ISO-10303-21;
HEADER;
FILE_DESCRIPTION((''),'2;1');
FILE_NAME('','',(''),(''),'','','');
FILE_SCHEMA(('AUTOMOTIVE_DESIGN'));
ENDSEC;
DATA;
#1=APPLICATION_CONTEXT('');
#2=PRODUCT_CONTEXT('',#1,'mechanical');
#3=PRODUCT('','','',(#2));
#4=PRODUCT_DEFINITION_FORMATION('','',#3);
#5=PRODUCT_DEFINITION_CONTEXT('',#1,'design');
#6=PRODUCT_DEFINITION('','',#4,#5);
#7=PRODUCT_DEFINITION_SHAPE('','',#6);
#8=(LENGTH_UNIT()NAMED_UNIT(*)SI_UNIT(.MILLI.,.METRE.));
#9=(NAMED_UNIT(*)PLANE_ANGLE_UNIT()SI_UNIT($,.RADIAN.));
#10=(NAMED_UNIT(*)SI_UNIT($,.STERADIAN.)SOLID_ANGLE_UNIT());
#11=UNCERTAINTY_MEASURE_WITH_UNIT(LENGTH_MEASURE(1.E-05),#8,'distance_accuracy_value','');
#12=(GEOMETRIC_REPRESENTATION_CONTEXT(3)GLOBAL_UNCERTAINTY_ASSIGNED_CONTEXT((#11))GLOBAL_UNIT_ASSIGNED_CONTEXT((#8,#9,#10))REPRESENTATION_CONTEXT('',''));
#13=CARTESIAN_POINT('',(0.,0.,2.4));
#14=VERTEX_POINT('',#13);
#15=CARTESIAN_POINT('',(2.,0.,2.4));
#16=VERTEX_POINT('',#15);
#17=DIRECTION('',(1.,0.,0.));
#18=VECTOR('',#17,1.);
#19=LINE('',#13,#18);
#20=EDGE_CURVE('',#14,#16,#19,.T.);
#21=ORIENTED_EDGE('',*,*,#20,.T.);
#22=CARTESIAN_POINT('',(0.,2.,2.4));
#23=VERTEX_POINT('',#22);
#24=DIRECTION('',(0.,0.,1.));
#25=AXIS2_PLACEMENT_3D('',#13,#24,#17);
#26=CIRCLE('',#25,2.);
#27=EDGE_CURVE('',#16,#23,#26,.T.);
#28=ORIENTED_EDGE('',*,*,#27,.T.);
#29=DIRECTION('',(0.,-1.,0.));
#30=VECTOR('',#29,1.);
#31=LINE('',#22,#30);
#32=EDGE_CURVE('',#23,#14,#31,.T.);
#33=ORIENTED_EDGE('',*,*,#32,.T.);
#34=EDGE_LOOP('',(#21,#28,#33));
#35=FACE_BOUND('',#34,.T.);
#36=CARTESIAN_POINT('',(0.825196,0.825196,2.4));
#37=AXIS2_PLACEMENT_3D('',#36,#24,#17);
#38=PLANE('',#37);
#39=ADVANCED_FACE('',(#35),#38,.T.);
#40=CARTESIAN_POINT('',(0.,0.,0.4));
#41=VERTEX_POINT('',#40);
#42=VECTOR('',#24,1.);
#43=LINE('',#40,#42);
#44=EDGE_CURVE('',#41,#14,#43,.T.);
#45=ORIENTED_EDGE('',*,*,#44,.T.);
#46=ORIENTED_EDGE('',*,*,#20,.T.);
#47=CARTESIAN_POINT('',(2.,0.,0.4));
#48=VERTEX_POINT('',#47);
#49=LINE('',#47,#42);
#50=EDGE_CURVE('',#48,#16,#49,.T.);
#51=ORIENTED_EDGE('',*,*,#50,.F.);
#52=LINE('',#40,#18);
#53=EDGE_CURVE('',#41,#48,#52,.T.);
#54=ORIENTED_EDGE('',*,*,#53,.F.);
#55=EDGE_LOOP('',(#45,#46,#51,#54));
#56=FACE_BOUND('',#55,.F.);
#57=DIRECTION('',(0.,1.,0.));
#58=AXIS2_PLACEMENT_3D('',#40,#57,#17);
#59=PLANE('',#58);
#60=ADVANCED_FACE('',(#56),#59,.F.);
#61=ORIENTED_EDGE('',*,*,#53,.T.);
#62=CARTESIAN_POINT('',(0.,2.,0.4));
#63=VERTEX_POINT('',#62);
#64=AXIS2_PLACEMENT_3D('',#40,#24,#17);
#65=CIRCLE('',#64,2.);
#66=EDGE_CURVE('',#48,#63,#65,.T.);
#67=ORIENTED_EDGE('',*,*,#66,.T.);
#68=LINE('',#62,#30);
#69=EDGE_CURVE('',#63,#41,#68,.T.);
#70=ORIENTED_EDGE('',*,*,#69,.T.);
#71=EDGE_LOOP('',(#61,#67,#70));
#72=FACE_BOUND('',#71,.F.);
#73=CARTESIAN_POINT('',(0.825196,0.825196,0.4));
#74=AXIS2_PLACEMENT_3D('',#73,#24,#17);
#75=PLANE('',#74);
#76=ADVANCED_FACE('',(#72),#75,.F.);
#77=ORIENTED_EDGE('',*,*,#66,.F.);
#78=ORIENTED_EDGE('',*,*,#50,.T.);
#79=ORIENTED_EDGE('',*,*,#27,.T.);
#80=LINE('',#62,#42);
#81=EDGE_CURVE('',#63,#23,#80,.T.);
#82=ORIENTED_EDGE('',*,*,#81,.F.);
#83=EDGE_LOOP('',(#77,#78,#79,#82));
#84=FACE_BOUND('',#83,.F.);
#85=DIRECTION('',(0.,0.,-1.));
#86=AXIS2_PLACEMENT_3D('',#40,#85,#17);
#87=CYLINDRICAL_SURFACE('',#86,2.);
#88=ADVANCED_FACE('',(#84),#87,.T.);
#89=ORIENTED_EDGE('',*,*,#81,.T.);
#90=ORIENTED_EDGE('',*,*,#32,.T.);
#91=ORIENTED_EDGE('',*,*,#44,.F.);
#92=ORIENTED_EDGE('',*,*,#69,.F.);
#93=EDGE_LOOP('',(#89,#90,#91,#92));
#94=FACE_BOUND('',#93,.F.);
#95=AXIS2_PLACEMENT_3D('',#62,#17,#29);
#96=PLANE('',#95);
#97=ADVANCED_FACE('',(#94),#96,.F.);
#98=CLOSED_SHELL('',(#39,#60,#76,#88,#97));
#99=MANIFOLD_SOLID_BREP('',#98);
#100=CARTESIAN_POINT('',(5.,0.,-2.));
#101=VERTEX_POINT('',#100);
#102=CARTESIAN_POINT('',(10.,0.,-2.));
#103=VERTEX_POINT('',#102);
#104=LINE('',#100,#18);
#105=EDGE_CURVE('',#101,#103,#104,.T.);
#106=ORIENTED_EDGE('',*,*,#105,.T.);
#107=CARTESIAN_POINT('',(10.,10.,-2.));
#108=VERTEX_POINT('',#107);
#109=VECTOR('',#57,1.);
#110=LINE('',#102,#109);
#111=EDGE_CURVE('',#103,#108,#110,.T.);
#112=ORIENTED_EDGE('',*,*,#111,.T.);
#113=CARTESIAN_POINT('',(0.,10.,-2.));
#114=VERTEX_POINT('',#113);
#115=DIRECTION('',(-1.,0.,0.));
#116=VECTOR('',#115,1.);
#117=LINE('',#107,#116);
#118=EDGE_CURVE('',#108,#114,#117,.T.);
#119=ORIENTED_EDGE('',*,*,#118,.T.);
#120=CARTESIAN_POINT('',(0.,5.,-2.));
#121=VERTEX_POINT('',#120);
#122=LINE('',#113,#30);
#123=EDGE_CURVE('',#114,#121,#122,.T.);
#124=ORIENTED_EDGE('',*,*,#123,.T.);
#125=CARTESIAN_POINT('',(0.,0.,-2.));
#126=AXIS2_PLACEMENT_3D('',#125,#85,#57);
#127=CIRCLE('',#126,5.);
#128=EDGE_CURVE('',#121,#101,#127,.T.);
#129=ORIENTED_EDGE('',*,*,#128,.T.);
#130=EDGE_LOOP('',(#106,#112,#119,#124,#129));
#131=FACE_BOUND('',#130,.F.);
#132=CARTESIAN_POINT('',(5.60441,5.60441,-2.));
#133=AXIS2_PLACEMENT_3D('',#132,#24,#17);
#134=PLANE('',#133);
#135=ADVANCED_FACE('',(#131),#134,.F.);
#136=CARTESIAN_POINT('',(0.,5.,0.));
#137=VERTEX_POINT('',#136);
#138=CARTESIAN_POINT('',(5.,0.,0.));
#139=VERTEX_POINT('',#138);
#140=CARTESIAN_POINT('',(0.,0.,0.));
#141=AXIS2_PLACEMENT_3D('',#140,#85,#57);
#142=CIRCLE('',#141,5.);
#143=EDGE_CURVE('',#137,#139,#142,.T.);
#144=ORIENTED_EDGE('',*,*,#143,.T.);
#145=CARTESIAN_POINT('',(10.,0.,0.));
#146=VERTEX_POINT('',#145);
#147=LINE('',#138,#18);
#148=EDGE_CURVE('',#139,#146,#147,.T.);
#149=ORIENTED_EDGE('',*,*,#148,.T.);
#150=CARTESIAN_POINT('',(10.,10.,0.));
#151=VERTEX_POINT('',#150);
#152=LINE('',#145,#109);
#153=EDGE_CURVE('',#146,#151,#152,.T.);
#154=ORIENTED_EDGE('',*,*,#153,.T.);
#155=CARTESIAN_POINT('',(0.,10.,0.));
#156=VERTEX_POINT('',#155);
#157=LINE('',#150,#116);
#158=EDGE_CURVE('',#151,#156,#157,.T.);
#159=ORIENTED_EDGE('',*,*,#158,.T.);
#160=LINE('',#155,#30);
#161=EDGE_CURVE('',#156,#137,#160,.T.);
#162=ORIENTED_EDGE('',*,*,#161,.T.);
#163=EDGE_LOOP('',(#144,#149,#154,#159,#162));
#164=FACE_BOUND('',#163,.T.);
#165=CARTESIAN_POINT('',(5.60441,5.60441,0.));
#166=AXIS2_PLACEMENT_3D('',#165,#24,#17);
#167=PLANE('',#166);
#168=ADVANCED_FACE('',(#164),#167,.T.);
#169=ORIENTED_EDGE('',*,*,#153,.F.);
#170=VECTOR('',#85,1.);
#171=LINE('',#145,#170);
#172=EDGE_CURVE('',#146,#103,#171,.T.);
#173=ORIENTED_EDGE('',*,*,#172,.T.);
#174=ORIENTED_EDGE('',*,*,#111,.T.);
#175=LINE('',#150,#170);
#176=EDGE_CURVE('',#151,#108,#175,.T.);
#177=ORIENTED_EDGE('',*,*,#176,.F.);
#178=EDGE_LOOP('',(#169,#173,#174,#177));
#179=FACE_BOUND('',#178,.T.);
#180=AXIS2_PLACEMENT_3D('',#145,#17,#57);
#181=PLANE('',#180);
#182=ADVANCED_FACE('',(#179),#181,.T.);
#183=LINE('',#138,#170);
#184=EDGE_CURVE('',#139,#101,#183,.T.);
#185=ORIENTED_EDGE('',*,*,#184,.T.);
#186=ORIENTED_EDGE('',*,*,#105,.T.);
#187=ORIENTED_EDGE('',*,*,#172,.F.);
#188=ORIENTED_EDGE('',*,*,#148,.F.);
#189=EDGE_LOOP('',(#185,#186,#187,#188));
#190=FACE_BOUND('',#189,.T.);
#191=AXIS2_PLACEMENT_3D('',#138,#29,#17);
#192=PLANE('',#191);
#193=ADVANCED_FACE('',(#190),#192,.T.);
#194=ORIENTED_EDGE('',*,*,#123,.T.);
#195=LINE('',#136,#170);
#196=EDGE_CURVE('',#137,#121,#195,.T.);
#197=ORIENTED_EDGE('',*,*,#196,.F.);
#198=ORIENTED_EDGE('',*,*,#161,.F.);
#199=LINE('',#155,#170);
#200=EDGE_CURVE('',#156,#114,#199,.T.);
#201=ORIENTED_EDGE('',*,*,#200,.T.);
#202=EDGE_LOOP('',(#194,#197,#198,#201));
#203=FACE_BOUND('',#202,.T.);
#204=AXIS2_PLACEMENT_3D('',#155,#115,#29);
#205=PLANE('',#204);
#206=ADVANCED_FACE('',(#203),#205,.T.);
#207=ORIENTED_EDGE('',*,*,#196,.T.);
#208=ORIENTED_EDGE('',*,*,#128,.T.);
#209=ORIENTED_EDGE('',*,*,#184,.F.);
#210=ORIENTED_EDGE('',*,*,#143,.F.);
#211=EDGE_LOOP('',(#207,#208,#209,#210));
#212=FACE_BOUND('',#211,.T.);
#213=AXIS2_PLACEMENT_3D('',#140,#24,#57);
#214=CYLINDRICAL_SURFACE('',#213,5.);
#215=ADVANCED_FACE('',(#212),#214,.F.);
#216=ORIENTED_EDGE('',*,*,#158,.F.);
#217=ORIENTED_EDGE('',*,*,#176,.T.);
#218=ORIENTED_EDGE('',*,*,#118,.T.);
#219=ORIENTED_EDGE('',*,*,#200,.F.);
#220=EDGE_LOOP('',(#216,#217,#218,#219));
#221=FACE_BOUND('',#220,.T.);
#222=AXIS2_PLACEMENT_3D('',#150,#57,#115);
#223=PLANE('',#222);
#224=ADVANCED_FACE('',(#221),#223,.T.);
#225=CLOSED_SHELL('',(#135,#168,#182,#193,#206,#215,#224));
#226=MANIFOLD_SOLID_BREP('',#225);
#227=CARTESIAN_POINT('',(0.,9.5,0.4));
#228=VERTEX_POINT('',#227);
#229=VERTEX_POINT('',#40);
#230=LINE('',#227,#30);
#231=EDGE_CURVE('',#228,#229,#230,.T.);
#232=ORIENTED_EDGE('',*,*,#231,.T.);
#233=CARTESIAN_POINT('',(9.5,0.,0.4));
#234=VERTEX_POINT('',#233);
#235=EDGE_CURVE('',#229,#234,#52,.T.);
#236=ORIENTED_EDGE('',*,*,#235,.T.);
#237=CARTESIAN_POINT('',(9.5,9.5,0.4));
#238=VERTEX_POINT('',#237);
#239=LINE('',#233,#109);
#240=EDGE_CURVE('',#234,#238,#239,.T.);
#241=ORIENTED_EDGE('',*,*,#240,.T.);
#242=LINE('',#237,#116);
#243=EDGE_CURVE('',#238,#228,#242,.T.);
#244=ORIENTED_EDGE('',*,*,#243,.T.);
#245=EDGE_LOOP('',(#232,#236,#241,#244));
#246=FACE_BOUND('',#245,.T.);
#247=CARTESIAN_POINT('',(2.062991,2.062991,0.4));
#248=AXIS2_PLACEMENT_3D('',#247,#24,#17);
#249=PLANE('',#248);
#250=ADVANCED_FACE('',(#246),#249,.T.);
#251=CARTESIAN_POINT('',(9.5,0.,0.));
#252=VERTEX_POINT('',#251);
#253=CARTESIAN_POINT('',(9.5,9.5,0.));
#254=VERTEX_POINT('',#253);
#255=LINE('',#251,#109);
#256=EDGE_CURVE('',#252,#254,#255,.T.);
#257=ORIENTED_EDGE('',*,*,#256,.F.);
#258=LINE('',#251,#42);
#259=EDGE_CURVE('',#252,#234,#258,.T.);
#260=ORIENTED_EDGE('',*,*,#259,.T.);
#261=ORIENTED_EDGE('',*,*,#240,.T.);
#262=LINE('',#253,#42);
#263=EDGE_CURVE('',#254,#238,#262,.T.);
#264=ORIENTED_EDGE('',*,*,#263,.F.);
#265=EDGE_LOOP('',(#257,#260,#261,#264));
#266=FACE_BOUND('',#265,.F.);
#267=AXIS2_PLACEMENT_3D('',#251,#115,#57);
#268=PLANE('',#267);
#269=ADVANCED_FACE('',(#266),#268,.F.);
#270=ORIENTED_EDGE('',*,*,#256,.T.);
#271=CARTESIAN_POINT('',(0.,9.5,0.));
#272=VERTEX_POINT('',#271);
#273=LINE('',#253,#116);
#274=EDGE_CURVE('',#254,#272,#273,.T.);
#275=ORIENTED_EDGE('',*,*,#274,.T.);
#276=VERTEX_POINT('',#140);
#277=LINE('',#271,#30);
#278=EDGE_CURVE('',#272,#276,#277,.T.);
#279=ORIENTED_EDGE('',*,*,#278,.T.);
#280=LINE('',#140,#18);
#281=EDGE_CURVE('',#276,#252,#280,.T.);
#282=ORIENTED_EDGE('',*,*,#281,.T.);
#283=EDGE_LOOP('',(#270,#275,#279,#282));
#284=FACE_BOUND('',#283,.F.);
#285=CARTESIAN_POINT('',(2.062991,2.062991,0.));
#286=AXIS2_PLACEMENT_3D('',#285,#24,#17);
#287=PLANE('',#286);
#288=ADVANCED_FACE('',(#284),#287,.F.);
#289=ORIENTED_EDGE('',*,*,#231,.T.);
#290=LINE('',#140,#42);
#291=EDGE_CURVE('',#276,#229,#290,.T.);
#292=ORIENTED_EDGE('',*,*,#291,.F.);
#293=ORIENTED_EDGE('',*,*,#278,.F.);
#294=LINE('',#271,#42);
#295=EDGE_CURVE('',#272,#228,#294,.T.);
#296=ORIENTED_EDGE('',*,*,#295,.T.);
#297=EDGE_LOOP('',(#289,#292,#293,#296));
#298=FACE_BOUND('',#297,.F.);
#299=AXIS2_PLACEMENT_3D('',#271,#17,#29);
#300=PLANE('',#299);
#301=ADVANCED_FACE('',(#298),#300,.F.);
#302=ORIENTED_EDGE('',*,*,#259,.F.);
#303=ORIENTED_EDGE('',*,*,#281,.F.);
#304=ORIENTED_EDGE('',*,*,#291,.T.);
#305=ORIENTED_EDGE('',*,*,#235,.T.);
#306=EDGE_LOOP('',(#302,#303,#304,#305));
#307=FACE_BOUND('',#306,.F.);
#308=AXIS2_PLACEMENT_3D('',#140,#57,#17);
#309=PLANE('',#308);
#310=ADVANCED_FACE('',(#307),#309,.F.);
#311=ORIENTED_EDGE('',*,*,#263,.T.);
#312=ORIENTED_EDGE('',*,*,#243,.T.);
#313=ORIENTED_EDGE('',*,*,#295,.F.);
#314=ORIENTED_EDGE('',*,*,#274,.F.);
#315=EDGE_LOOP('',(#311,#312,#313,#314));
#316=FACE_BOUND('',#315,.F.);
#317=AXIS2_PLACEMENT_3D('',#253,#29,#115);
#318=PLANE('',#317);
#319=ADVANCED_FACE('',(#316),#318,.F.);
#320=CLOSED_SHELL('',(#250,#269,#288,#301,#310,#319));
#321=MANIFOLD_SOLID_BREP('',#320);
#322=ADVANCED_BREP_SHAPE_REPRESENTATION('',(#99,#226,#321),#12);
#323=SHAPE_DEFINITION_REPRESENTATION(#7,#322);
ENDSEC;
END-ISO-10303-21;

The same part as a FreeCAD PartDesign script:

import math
import FreeCAD as App
import Part
import Sketcher

V = App.Vector

doc = App.newDocument("Part")
body = doc.addObject("PartDesign::Body", "Body")

# Sketch on XY plane
sketch1 = body.newObject("Sketcher::SketchObject", "Sketch")
sketch1.AttachmentSupport = (doc.getObject("XY_Plane"), [""])
sketch1.MapMode = "FlatFace"
sketch1.addGeometry([
    Part.ArcOfCircle(Part.Circle(V(0, 0, 0), V(0, 0, 1), 5), math.radians(0), math.radians(90)),  # 0
    Part.LineSegment(V(5, 0, 0), V(10, 0, 0)),  # 1
    Part.LineSegment(V(10, 0, 0), V(10, 10, 0)),  # 2
    Part.LineSegment(V(10, 10, 0), V(0, 10, 0)),  # 3
    Part.LineSegment(V(0, 10, 0), V(0, 5, 0)),  # 4
], False)
sketch1.addConstraint([
    Sketcher.Constraint("Coincident", 0, 1, 1, 1),
    Sketcher.Constraint("Coincident", 1, 2, 2, 1),
    Sketcher.Constraint("Coincident", 2, 2, 3, 1),
    Sketcher.Constraint("Coincident", 3, 2, 4, 1),
    Sketcher.Constraint("Coincident", 4, 2, 0, 2),
    Sketcher.Constraint("Horizontal", 1),
    Sketcher.Constraint("Vertical", 2),
    Sketcher.Constraint("Horizontal", 3),
    Sketcher.Constraint("Vertical", 4),
    Sketcher.Constraint("Coincident", 0, 3, -1, 1),
    Sketcher.Constraint("PointOnObject", 0, 1, -1),
    Sketcher.Constraint("PointOnObject", 3, 2, -2),
    Sketcher.Constraint("Equal", 3, 2),
    Sketcher.Constraint("Radius", 0, 5.0),
    Sketcher.Constraint("DistanceX", 1, 1, 1, 2, 5.0),
])
pad1 = body.newObject("PartDesign::Pad", "Pad")
pad1.Profile = sketch1
pad1.Length = 2
pad1.Reversed = True
body2 = doc.addObject("PartDesign::Body", "Body001")

# Sketch on XY plane
sketch2 = body2.newObject("Sketcher::SketchObject", "Sketch001")
sketch2.AttachmentSupport = (doc.getObject("XY_Plane001"), [""])
sketch2.MapMode = "FlatFace"
sketch2.addGeometry([
    Part.LineSegment(V(0, 0, 0), V(10, 0, 0)),
    Part.LineSegment(V(10, 0, 0), V(10, 10, 0)),
    Part.LineSegment(V(10, 10, 0), V(0, 10, 0)),
    Part.LineSegment(V(0, 10, 0), V(0, 0, 0)),
], False)
sketch2.addConstraint([
    Sketcher.Constraint("Coincident", 0, 2, 1, 1),
    Sketcher.Constraint("Coincident", 1, 2, 2, 1),
    Sketcher.Constraint("Coincident", 2, 2, 3, 1),
    Sketcher.Constraint("Coincident", 3, 2, 0, 1),
    Sketcher.Constraint("Horizontal", 0),
    Sketcher.Constraint("Vertical", 1),
    Sketcher.Constraint("Horizontal", 2),
    Sketcher.Constraint("Vertical", 3),
    Sketcher.Constraint("Coincident", 3, 2, -1, 1),
    Sketcher.Constraint("Equal", 2, 1),
    Sketcher.Constraint("DistanceX", 0, 1, 0, 2, 9.5),
])
pad2 = body2.newObject("PartDesign::Pad", "Pad001")
pad2.Profile = sketch2
pad2.Length = 0.4
body3 = doc.addObject("PartDesign::Body", "Body002")

# Sketch on XY plane
sketch3 = body3.newObject("Sketcher::SketchObject", "Sketch002")
sketch3.AttachmentSupport = (doc.getObject("XY_Plane002"), [""])
sketch3.MapMode = "FlatFace"
sketch3.AttachmentOffset = App.Placement(V(0, 0, 0.4), App.Rotation())
sketch3.addGeometry([
    Part.LineSegment(V(0, 0, 0), V(2, 0, 0)),
    Part.ArcOfCircle(Part.Circle(V(0, 0, 0), V(0, 0, 1), 2), math.radians(0), math.radians(90)),
    Part.LineSegment(V(0, 2, 0), V(0, 0, 0)),
], False)
sketch3.addConstraint([
    Sketcher.Constraint("Coincident", 0, 2, 1, 1),
    Sketcher.Constraint("Coincident", 1, 2, 2, 1),
    Sketcher.Constraint("Coincident", 2, 2, 0, 1),
    Sketcher.Constraint("Horizontal", 0),
    Sketcher.Constraint("Vertical", 2),
    Sketcher.Constraint("Coincident", 1, 3, -1, 1),
    Sketcher.Constraint("Coincident", 2, 2, -1, 1),
    Sketcher.Constraint("Radius", 1, 2.0),
])
pad3 = body3.newObject("PartDesign::Pad", "Pad002")
pad3.Profile = sketch3
pad3.Length = 2

doc.recompute()
